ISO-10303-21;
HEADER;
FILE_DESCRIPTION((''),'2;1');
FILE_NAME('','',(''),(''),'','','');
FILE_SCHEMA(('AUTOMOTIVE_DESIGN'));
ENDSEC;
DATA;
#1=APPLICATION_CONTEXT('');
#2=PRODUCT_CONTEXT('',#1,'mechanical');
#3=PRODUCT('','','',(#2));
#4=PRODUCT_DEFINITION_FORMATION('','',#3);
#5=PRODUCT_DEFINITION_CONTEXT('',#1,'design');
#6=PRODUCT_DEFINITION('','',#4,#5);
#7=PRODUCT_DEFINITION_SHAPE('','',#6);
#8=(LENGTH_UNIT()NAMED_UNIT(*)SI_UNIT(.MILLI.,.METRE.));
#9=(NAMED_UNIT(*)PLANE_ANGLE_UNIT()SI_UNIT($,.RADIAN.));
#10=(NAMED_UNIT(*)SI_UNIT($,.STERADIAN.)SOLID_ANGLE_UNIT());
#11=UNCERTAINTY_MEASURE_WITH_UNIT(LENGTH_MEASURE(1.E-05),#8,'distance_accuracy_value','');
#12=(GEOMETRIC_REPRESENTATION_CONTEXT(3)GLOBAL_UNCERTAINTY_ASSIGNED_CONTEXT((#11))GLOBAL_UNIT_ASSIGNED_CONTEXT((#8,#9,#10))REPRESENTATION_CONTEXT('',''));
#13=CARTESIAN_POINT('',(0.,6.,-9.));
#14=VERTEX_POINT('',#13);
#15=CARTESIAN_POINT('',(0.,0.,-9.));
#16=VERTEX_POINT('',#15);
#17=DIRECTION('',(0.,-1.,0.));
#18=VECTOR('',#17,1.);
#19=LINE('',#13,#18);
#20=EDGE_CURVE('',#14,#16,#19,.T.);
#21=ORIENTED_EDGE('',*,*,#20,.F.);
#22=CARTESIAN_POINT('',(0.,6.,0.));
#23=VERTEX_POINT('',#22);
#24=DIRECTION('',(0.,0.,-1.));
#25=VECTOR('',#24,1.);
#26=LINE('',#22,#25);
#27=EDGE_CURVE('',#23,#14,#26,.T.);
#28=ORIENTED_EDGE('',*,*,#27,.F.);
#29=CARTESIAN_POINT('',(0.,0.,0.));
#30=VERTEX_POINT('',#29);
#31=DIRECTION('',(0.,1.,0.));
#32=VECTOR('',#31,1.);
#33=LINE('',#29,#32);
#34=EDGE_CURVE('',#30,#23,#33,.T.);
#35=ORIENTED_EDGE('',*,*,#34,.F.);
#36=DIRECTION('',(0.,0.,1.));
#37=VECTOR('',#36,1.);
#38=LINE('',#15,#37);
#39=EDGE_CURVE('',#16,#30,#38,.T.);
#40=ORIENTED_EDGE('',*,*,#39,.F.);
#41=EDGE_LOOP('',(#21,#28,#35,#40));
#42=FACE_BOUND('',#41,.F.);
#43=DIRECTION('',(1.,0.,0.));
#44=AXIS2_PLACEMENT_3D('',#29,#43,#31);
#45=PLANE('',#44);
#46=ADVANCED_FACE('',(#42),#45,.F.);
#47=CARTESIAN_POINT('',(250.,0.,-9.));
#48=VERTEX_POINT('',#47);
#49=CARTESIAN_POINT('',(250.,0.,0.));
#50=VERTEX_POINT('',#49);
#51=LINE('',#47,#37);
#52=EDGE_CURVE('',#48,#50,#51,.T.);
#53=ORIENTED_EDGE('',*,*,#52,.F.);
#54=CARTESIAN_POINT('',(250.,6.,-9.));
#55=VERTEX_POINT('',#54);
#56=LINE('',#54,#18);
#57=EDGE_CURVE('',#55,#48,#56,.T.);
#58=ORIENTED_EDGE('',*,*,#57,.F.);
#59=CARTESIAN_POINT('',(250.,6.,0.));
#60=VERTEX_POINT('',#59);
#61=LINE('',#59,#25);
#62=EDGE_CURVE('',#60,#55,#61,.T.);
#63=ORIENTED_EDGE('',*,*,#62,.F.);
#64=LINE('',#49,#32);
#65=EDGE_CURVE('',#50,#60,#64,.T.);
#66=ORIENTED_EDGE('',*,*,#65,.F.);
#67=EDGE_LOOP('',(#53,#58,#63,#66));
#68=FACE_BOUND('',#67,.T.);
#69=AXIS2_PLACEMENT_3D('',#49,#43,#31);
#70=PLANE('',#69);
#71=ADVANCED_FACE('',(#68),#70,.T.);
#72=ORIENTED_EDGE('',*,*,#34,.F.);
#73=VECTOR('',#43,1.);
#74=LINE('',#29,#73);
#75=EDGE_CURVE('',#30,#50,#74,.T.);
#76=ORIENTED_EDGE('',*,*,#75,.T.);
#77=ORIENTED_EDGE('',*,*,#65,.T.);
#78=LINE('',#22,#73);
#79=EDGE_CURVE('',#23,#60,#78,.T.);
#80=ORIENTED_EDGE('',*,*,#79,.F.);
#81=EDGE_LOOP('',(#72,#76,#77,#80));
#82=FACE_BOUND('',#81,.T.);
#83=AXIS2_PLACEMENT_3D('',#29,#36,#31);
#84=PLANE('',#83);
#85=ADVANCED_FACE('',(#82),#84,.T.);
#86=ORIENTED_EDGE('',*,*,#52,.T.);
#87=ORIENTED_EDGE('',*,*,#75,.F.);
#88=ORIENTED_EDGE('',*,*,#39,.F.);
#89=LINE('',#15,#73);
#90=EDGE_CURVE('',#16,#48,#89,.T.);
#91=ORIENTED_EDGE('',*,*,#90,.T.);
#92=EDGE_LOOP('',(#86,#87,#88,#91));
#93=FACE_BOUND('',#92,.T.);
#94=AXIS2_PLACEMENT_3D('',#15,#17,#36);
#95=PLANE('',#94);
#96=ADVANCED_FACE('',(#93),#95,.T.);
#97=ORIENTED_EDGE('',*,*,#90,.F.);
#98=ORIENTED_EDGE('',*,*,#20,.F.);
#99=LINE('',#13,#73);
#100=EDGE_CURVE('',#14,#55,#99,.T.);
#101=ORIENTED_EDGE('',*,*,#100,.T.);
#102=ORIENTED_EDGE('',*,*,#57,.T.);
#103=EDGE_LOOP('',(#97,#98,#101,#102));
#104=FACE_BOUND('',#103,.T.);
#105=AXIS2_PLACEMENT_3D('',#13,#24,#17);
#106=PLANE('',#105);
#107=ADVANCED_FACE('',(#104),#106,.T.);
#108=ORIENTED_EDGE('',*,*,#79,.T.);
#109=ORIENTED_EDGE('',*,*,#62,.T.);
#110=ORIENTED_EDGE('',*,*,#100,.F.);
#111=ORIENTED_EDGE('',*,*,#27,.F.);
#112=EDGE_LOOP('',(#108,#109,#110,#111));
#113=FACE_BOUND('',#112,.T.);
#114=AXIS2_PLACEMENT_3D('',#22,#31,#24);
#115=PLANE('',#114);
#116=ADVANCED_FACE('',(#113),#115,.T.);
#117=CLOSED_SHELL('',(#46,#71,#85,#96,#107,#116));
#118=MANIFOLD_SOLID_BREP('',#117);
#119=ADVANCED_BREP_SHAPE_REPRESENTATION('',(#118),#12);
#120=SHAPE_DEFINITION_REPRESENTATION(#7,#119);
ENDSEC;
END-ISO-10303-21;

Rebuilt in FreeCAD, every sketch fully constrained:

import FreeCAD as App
import Part
import Sketcher


def add_polygon(sketch, points):
    """Adds a closed chain of lines whose ends are joined by coincident constraints."""
    first, n = sketch.GeometryCount, len(points)
    for a, b in zip(points, points[1:] + points[:1]):
        sketch.addGeometry(Part.LineSegment(App.Vector(*a, 0), App.Vector(*b, 0)), False)
    for i in range(n):
        sketch.addConstraint(Sketcher.Constraint("Coincident", first + i, 2, first + (i + 1) % n, 1))

doc = App.newDocument("Part")
body = doc.addObject("PartDesign::Body", "Body")

sketch1 = doc.addObject("Sketcher::SketchObject", "Sketch")
body.addObject(sketch1)
sketch1.AttachmentSupport = (doc.YZ_Plane, [""])
sketch1.MapMode = "FlatFace"
add_polygon(sketch1, [(6, 0), (0, 0), (0, -9), (6, -9)])
sketch1.addConstraint(Sketcher.Constraint("Horizontal", 0))
sketch1.addConstraint(Sketcher.Constraint("Vertical", 1))
sketch1.addConstraint(Sketcher.Constraint("Horizontal", 2))
sketch1.addConstraint(Sketcher.Constraint("Vertical", 3))
sketch1.addConstraint(Sketcher.Constraint("Coincident", 0, 2, -1, 1))
sketch1.addConstraint(Sketcher.Constraint("DistanceX", 0, 2, 0, 1, 6.0))
sketch1.addConstraint(Sketcher.Constraint("DistanceY", 1, 2, 1, 1, 9.0))
pad1 = doc.addObject("PartDesign::Pad", "Pad")
body.addObject(pad1)
pad1.Profile = sketch1
pad1.Length = 250

doc.recompute()
